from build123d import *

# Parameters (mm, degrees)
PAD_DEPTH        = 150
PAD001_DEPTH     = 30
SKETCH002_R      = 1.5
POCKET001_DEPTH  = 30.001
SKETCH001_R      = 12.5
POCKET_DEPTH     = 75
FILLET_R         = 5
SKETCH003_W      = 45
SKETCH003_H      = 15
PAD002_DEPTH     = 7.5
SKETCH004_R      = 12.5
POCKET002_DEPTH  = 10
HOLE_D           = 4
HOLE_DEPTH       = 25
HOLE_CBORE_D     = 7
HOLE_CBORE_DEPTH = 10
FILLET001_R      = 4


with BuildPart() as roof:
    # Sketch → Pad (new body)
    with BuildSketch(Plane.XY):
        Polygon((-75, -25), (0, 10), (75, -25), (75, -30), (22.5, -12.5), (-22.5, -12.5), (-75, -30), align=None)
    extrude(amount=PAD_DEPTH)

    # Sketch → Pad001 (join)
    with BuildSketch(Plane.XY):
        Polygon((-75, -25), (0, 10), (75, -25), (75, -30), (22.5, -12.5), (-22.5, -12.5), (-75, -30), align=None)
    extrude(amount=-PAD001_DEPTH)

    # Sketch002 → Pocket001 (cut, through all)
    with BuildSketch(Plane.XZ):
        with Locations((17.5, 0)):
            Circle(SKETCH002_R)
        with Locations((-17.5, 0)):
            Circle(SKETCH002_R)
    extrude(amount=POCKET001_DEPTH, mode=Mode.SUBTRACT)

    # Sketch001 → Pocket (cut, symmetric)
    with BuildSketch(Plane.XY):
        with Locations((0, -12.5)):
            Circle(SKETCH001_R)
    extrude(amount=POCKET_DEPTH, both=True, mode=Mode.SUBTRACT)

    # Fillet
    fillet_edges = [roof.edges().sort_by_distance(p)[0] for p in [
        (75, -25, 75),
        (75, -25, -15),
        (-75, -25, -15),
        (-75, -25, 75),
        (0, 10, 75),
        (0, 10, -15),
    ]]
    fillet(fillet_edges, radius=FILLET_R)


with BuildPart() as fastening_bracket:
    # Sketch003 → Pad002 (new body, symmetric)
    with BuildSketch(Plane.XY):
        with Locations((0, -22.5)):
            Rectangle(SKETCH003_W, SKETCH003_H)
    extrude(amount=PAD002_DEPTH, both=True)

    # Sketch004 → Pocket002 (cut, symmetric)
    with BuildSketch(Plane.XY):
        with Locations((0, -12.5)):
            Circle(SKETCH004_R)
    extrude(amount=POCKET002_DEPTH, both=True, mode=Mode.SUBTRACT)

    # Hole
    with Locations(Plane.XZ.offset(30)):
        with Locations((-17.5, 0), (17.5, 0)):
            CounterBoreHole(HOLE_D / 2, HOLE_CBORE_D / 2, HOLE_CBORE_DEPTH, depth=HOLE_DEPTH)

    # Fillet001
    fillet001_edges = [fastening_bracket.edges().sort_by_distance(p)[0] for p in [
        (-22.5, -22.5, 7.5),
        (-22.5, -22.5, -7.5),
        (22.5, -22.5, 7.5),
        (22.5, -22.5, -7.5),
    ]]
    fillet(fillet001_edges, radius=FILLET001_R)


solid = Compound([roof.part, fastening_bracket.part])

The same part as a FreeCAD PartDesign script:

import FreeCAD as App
import Part
import Sketcher
Q = App.Units.Quantity


def edges_at(feature, points):
    """Names of the edges that pass closest to the given points."""
    edges = feature.Shape.Edges
    near = lambda p: min(range(len(edges)), key=lambda i: edges[i].distToShape(Part.Vertex(*p))[0])
    return sorted({f"Edge{near(p) + 1}" for p in points})

doc = App.newDocument("Part")
body = doc.addObject("PartDesign::Body", "Body")

sketch1 = body.newObject("Sketcher::SketchObject", "Sketch")
sketch1.AttachmentSupport = (doc.getObject("XY_Plane"), [""])
sketch1.MapMode = "FlatFace"
sketch1.addGeometry(Part.LineSegment(App.Vector(0, 10, 0), App.Vector(-75, -25, 0)), False)
sketch1.addGeometry(Part.LineSegment(App.Vector(-75, -25, 0), App.Vector(-75, -30, 0)), False)
sketch1.addGeometry(Part.LineSegment(App.Vector(-75, -30, 0), App.Vector(-22, -12, 0)), False)
sketch1.addGeometry(Part.LineSegment(App.Vector(-22, -12, 0), App.Vector(22, -12, 0)), False)
sketch1.addGeometry(Part.LineSegment(App.Vector(22, -12, 0), App.Vector(75, -30, 0)), False)
sketch1.addGeometry(Part.LineSegment(App.Vector(75, -30, 0), App.Vector(75, -25, 0)), False)
sketch1.addGeometry(Part.LineSegment(App.Vector(75, -25, 0), App.Vector(0, 10, 0)), False)
sketch1.addConstraint(Sketcher.Constraint("Coincident", 0, 2, 1, 1))
sketch1.addConstraint(Sketcher.Constraint("Coincident", 1, 2, 2, 1))
sketch1.addConstraint(Sketcher.Constraint("Coincident", 2, 2, 3, 1))
sketch1.addConstraint(Sketcher.Constraint("Coincident", 3, 2, 4, 1))
sketch1.addConstraint(Sketcher.Constraint("Coincident", 4, 2, 5, 1))
sketch1.addConstraint(Sketcher.Constraint("Coincident", 5, 2, 6, 1))
sketch1.addConstraint(Sketcher.Constraint("Coincident", 6, 2, 0, 1))
sketch1.addConstraint(Sketcher.Constraint("Vertical", 1))
sketch1.addConstraint(Sketcher.Constraint("Horizontal", 3))
sketch1.addConstraint(Sketcher.Constraint("Vertical", 5))
sketch1.addConstraint(Sketcher.Constraint("Symmetric", 1, 2, 4, 2, -2))
sketch1.addConstraint(Sketcher.Constraint("PointOnObject", 6, 2, -2))
sketch1.addConstraint(Sketcher.Constraint("Horizontal", 0, 2, 5, 2))
sketch1.addConstraint(Sketcher.Constraint("Equal", 2, 4))
sketch1.addConstraint(Sketcher.Constraint("DistanceX", 3, 1, 3, 2, Q("45 mm")))
sketch1.addConstraint(Sketcher.Constraint("DistanceY", 1, 2, 1, 1, Q("5 mm")))
sketch1.addConstraint(Sketcher.Constraint("DistanceX", 0, 2, -1, 1, Q("75 mm")))
sketch1.addConstraint(Sketcher.Constraint("DistanceY", 0, 2, -1, 1, Q("25 mm")))
sketch1.addConstraint(Sketcher.Constraint("DistanceY", -1, 1, 6, 2, Q("10 mm")))
sketch1.addConstraint(Sketcher.Constraint("DistanceY", 2, 2, -1, 1, Q("12.5 mm")))
pad1 = body.newObject("PartDesign::Pad", "Pad")
pad1.Profile = sketch1
pad1.Length = 150

sketch2 = body.newObject("Sketcher::SketchObject", "Sketch001")
sketch2.AttachmentSupport = (doc.getObject("XY_Plane"), [""])
sketch2.MapMode = "FlatFace"
sketch2.addGeometry(Part.LineSegment(App.Vector(0, 10, 0), App.Vector(-75, -25, 0)), False)
sketch2.addGeometry(Part.LineSegment(App.Vector(-75, -25, 0), App.Vector(-75, -30, 0)), False)
sketch2.addGeometry(Part.LineSegment(App.Vector(-75, -30, 0), App.Vector(-22, -12, 0)), False)
sketch2.addGeometry(Part.LineSegment(App.Vector(-22, -12, 0), App.Vector(22, -12, 0)), False)
sketch2.addGeometry(Part.LineSegment(App.Vector(22, -12, 0), App.Vector(75, -30, 0)), False)
sketch2.addGeometry(Part.LineSegment(App.Vector(75, -30, 0), App.Vector(75, -25, 0)), False)
sketch2.addGeometry(Part.LineSegment(App.Vector(75, -25, 0), App.Vector(0, 10, 0)), False)
sketch2.addConstraint(Sketcher.Constraint("Coincident", 0, 2, 1, 1))
sketch2.addConstraint(Sketcher.Constraint("Coincident", 1, 2, 2, 1))
sketch2.addConstraint(Sketcher.Constraint("Coincident", 2, 2, 3, 1))
sketch2.addConstraint(Sketcher.Constraint("Coincident", 3, 2, 4, 1))
sketch2.addConstraint(Sketcher.Constraint("Coincident", 4, 2, 5, 1))
sketch2.addConstraint(Sketcher.Constraint("Coincident", 5, 2, 6, 1))
sketch2.addConstraint(Sketcher.Constraint("Coincident", 6, 2, 0, 1))
sketch2.addConstraint(Sketcher.Constraint("Vertical", 1))
sketch2.addConstraint(Sketcher.Constraint("Horizontal", 3))
sketch2.addConstraint(Sketcher.Constraint("Vertical", 5))
sketch2.addConstraint(Sketcher.Constraint("Symmetric", 1, 2, 4, 2, -2))
sketch2.addConstraint(Sketcher.Constraint("PointOnObject", 6, 2, -2))
sketch2.addConstraint(Sketcher.Constraint("Horizontal", 0, 2, 5, 2))
sketch2.addConstraint(Sketcher.Constraint("Equal", 2, 4))
sketch2.addConstraint(Sketcher.Constraint("DistanceX", 3, 1, 3, 2, Q("45 mm")))
sketch2.addConstraint(Sketcher.Constraint("DistanceY", 1, 2, 1, 1, Q("5 mm")))
sketch2.addConstraint(Sketcher.Constraint("DistanceX", 0, 2, -1, 1, Q("75 mm")))
sketch2.addConstraint(Sketcher.Constraint("DistanceY", 0, 2, -1, 1, Q("25 mm")))
sketch2.addConstraint(Sketcher.Constraint("DistanceY", -1, 1, 6, 2, Q("10 mm")))
sketch2.addConstraint(Sketcher.Constraint("DistanceY", 2, 2, -1, 1, Q("12.5 mm")))
pad2 = body.newObject("PartDesign::Pad", "Pad001")
pad2.Profile = sketch2
pad2.Length = 30
pad2.Reversed = True

sketch3 = body.newObject("Sketcher::SketchObject", "Sketch002")
sketch3.AttachmentSupport = (doc.getObject("XZ_Plane"), [""])
sketch3.MapMode = "FlatFace"
sketch3.addGeometry(Part.Circle(App.Vector(17.5, 0, 0), App.Vector(0, 0, 1), 1.5), False)
sketch3.addGeometry(Part.Circle(App.Vector(-17.5, 0, 0), App.Vector(0, 0, 1), 1.5), False)
sketch3.addConstraint(Sketcher.Constraint("Equal", 0, 1))
sketch3.addConstraint(Sketcher.Constraint("Symmetric", 0, 3, 1, 3, -1, 1))
sketch3.addConstraint(Sketcher.Constraint("PointOnObject", 0, 3, -1))
sketch3.addConstraint(Sketcher.Constraint("Diameter", 0, Q("3 mm")))
sketch3.addConstraint(Sketcher.Constraint("DistanceX", 1, 3, 0, 3, Q("35 mm")))
pocket1 = body.newObject("PartDesign::Pocket", "Pocket")
pocket1.Profile = sketch3
pocket1.Type = "ThroughAll"
pocket1.Reversed = True

sketch4 = body.newObject("Sketcher::SketchObject", "Sketch003")
sketch4.AttachmentSupport = (doc.getObject("XY_Plane"), [""])
sketch4.MapMode = "FlatFace"
sketch4.addGeometry(Part.Circle(App.Vector(0, -12, 0), App.Vector(0, 0, 1), 12), False)
sketch4.addConstraint(Sketcher.Constraint("PointOnObject", 0, 3, -2))
sketch4.addConstraint(Sketcher.Constraint("Diameter", 0, Q("25 mm")))
sketch4.addConstraint(Sketcher.Constraint("DistanceY", 0, 3, -1, 1, Q("12.5 mm")))
pocket2 = body.newObject("PartDesign::Pocket", "Pocket001")
pocket2.Profile = sketch4
pocket2.Length = 150
pocket2.Midplane = True
doc.recompute()

fillet = body.newObject("PartDesign::Fillet", "Fillet")
fillet.Base = (pocket2, edges_at(pocket2, [
    (75, -25, 60),
    (75, -25, 60),
    (-75, -25, 60),
    (-75, -25, 60),
    (0, 10, 60),
    (0, 10, 60),
]))
fillet.Radius = 5
body2 = doc.addObject("PartDesign::Body", "Body001")

sketch5 = body2.newObject("Sketcher::SketchObject", "Sketch004")
sketch5.AttachmentSupport = (doc.getObject("XY_Plane001"), [""])
sketch5.MapMode = "FlatFace"
sketch5.addGeometry(Part.LineSegment(App.Vector(-22, -15, 0), App.Vector(-22, -30, 0)), False)
sketch5.addGeometry(Part.LineSegment(App.Vector(-22, -30, 0), App.Vector(22, -30, 0)), False)
sketch5.addGeometry(Part.LineSegment(App.Vector(22, -30, 0), App.Vector(22, -15, 0)), False)
sketch5.addGeometry(Part.LineSegment(App.Vector(22, -15, 0), App.Vector(-22, -15, 0)), False)
sketch5.addConstraint(Sketcher.Constraint("Coincident", 0, 2, 1, 1))
sketch5.addConstraint(Sketcher.Constraint("Coincident", 1, 2, 2, 1))
sketch5.addConstraint(Sketcher.Constraint("Coincident", 2, 2, 3, 1))
sketch5.addConstraint(Sketcher.Constraint("Coincident", 3, 2, 0, 1))
sketch5.addConstraint(Sketcher.Constraint("Vertical", 0))
sketch5.addConstraint(Sketcher.Constraint("Horizontal", 1))
sketch5.addConstraint(Sketcher.Constraint("Vertical", 2))
sketch5.addConstraint(Sketcher.Constraint("Horizontal", 3))
sketch5.addConstraint(Sketcher.Constraint("DistanceX", 1, 1, 1, 2, Q("45 mm")))
sketch5.addConstraint(Sketcher.Constraint("DistanceY", 0, 2, 0, 1, Q("15 mm")))
sketch5.addConstraint(Sketcher.Constraint("DistanceY", 0, 2, -1, 1, Q("30 mm")))
sketch5.addConstraint(Sketcher.Constraint("DistanceX", 0, 2, -1, 1, Q("22.5 mm")))
pad3 = body2.newObject("PartDesign::Pad", "Pad002")
pad3.Profile = sketch5
pad3.Length = 15
pad3.Midplane = True

sketch6 = body2.newObject("Sketcher::SketchObject", "Sketch005")
sketch6.AttachmentSupport = (doc.getObject("XY_Plane001"), [""])
sketch6.MapMode = "FlatFace"
sketch6.addGeometry(Part.Circle(App.Vector(0, -12, 0), App.Vector(0, 0, 1), 12), False)
sketch6.addConstraint(Sketcher.Constraint("PointOnObject", 0, 3, -2))
sketch6.addConstraint(Sketcher.Constraint("Diameter", 0, Q("25 mm")))
sketch6.addConstraint(Sketcher.Constraint("DistanceY", 0, 3, -1, 1, Q("12.5 mm")))
pocket3 = body2.newObject("PartDesign::Pocket", "Pocket002")
pocket3.Profile = sketch6
pocket3.Length = 20
pocket3.Midplane = True

sketch7 = body2.newObject("Sketcher::SketchObject", "Sketch006")
sketch7.AttachmentSupport = (doc.getObject("XZ_Plane001"), [""])
sketch7.MapMode = "FlatFace"
sketch7.AttachmentOffset = App.Placement(App.Vector(0, 0, 30), App.Rotation())
sketch7.addGeometry(Part.Circle(App.Vector(-17.5, 0, 0), App.Vector(0, 0, 1), 2), False)
sketch7.addGeometry(Part.Circle(App.Vector(17.5, 0, 0), App.Vector(0, 0, 1), 2), False)
sketch7.addConstraint(Sketcher.Constraint("Equal", 0, 1))
sketch7.addConstraint(Sketcher.Constraint("Symmetric", 0, 3, 1, 3, -1, 1))
sketch7.addConstraint(Sketcher.Constraint("PointOnObject", 0, 3, -1))
sketch7.addConstraint(Sketcher.Constraint("Diameter", 0, Q("4 mm")))
sketch7.addConstraint(Sketcher.Constraint("DistanceX", 0, 3, 1, 3, Q("35 mm")))
doc.recompute()
hole = body2.newObject("PartDesign::Hole", "Hole")
hole.Profile = sketch7
hole.ThreadType = "None"
hole.Diameter = 4
hole.DepthType = "Dimension"
hole.Depth = 25
hole.DrillPoint = "Flat"
hole.HoleCutType = "Counterbore"
hole.HoleCutDiameter = 7
hole.HoleCutDepth = 10
doc.recompute()

fillet2 = body2.newObject("PartDesign::Fillet", "Fillet001")
fillet2.Base = (hole, edges_at(hole, [
    (-22.5, -22.5, 7.5),
    (-22.5, -22.5, -7.5),
    (22.5, -22.5, 7.5),
    (22.5, -22.5, -7.5),
]))
fillet2.Radius = 4

doc.recompute()
